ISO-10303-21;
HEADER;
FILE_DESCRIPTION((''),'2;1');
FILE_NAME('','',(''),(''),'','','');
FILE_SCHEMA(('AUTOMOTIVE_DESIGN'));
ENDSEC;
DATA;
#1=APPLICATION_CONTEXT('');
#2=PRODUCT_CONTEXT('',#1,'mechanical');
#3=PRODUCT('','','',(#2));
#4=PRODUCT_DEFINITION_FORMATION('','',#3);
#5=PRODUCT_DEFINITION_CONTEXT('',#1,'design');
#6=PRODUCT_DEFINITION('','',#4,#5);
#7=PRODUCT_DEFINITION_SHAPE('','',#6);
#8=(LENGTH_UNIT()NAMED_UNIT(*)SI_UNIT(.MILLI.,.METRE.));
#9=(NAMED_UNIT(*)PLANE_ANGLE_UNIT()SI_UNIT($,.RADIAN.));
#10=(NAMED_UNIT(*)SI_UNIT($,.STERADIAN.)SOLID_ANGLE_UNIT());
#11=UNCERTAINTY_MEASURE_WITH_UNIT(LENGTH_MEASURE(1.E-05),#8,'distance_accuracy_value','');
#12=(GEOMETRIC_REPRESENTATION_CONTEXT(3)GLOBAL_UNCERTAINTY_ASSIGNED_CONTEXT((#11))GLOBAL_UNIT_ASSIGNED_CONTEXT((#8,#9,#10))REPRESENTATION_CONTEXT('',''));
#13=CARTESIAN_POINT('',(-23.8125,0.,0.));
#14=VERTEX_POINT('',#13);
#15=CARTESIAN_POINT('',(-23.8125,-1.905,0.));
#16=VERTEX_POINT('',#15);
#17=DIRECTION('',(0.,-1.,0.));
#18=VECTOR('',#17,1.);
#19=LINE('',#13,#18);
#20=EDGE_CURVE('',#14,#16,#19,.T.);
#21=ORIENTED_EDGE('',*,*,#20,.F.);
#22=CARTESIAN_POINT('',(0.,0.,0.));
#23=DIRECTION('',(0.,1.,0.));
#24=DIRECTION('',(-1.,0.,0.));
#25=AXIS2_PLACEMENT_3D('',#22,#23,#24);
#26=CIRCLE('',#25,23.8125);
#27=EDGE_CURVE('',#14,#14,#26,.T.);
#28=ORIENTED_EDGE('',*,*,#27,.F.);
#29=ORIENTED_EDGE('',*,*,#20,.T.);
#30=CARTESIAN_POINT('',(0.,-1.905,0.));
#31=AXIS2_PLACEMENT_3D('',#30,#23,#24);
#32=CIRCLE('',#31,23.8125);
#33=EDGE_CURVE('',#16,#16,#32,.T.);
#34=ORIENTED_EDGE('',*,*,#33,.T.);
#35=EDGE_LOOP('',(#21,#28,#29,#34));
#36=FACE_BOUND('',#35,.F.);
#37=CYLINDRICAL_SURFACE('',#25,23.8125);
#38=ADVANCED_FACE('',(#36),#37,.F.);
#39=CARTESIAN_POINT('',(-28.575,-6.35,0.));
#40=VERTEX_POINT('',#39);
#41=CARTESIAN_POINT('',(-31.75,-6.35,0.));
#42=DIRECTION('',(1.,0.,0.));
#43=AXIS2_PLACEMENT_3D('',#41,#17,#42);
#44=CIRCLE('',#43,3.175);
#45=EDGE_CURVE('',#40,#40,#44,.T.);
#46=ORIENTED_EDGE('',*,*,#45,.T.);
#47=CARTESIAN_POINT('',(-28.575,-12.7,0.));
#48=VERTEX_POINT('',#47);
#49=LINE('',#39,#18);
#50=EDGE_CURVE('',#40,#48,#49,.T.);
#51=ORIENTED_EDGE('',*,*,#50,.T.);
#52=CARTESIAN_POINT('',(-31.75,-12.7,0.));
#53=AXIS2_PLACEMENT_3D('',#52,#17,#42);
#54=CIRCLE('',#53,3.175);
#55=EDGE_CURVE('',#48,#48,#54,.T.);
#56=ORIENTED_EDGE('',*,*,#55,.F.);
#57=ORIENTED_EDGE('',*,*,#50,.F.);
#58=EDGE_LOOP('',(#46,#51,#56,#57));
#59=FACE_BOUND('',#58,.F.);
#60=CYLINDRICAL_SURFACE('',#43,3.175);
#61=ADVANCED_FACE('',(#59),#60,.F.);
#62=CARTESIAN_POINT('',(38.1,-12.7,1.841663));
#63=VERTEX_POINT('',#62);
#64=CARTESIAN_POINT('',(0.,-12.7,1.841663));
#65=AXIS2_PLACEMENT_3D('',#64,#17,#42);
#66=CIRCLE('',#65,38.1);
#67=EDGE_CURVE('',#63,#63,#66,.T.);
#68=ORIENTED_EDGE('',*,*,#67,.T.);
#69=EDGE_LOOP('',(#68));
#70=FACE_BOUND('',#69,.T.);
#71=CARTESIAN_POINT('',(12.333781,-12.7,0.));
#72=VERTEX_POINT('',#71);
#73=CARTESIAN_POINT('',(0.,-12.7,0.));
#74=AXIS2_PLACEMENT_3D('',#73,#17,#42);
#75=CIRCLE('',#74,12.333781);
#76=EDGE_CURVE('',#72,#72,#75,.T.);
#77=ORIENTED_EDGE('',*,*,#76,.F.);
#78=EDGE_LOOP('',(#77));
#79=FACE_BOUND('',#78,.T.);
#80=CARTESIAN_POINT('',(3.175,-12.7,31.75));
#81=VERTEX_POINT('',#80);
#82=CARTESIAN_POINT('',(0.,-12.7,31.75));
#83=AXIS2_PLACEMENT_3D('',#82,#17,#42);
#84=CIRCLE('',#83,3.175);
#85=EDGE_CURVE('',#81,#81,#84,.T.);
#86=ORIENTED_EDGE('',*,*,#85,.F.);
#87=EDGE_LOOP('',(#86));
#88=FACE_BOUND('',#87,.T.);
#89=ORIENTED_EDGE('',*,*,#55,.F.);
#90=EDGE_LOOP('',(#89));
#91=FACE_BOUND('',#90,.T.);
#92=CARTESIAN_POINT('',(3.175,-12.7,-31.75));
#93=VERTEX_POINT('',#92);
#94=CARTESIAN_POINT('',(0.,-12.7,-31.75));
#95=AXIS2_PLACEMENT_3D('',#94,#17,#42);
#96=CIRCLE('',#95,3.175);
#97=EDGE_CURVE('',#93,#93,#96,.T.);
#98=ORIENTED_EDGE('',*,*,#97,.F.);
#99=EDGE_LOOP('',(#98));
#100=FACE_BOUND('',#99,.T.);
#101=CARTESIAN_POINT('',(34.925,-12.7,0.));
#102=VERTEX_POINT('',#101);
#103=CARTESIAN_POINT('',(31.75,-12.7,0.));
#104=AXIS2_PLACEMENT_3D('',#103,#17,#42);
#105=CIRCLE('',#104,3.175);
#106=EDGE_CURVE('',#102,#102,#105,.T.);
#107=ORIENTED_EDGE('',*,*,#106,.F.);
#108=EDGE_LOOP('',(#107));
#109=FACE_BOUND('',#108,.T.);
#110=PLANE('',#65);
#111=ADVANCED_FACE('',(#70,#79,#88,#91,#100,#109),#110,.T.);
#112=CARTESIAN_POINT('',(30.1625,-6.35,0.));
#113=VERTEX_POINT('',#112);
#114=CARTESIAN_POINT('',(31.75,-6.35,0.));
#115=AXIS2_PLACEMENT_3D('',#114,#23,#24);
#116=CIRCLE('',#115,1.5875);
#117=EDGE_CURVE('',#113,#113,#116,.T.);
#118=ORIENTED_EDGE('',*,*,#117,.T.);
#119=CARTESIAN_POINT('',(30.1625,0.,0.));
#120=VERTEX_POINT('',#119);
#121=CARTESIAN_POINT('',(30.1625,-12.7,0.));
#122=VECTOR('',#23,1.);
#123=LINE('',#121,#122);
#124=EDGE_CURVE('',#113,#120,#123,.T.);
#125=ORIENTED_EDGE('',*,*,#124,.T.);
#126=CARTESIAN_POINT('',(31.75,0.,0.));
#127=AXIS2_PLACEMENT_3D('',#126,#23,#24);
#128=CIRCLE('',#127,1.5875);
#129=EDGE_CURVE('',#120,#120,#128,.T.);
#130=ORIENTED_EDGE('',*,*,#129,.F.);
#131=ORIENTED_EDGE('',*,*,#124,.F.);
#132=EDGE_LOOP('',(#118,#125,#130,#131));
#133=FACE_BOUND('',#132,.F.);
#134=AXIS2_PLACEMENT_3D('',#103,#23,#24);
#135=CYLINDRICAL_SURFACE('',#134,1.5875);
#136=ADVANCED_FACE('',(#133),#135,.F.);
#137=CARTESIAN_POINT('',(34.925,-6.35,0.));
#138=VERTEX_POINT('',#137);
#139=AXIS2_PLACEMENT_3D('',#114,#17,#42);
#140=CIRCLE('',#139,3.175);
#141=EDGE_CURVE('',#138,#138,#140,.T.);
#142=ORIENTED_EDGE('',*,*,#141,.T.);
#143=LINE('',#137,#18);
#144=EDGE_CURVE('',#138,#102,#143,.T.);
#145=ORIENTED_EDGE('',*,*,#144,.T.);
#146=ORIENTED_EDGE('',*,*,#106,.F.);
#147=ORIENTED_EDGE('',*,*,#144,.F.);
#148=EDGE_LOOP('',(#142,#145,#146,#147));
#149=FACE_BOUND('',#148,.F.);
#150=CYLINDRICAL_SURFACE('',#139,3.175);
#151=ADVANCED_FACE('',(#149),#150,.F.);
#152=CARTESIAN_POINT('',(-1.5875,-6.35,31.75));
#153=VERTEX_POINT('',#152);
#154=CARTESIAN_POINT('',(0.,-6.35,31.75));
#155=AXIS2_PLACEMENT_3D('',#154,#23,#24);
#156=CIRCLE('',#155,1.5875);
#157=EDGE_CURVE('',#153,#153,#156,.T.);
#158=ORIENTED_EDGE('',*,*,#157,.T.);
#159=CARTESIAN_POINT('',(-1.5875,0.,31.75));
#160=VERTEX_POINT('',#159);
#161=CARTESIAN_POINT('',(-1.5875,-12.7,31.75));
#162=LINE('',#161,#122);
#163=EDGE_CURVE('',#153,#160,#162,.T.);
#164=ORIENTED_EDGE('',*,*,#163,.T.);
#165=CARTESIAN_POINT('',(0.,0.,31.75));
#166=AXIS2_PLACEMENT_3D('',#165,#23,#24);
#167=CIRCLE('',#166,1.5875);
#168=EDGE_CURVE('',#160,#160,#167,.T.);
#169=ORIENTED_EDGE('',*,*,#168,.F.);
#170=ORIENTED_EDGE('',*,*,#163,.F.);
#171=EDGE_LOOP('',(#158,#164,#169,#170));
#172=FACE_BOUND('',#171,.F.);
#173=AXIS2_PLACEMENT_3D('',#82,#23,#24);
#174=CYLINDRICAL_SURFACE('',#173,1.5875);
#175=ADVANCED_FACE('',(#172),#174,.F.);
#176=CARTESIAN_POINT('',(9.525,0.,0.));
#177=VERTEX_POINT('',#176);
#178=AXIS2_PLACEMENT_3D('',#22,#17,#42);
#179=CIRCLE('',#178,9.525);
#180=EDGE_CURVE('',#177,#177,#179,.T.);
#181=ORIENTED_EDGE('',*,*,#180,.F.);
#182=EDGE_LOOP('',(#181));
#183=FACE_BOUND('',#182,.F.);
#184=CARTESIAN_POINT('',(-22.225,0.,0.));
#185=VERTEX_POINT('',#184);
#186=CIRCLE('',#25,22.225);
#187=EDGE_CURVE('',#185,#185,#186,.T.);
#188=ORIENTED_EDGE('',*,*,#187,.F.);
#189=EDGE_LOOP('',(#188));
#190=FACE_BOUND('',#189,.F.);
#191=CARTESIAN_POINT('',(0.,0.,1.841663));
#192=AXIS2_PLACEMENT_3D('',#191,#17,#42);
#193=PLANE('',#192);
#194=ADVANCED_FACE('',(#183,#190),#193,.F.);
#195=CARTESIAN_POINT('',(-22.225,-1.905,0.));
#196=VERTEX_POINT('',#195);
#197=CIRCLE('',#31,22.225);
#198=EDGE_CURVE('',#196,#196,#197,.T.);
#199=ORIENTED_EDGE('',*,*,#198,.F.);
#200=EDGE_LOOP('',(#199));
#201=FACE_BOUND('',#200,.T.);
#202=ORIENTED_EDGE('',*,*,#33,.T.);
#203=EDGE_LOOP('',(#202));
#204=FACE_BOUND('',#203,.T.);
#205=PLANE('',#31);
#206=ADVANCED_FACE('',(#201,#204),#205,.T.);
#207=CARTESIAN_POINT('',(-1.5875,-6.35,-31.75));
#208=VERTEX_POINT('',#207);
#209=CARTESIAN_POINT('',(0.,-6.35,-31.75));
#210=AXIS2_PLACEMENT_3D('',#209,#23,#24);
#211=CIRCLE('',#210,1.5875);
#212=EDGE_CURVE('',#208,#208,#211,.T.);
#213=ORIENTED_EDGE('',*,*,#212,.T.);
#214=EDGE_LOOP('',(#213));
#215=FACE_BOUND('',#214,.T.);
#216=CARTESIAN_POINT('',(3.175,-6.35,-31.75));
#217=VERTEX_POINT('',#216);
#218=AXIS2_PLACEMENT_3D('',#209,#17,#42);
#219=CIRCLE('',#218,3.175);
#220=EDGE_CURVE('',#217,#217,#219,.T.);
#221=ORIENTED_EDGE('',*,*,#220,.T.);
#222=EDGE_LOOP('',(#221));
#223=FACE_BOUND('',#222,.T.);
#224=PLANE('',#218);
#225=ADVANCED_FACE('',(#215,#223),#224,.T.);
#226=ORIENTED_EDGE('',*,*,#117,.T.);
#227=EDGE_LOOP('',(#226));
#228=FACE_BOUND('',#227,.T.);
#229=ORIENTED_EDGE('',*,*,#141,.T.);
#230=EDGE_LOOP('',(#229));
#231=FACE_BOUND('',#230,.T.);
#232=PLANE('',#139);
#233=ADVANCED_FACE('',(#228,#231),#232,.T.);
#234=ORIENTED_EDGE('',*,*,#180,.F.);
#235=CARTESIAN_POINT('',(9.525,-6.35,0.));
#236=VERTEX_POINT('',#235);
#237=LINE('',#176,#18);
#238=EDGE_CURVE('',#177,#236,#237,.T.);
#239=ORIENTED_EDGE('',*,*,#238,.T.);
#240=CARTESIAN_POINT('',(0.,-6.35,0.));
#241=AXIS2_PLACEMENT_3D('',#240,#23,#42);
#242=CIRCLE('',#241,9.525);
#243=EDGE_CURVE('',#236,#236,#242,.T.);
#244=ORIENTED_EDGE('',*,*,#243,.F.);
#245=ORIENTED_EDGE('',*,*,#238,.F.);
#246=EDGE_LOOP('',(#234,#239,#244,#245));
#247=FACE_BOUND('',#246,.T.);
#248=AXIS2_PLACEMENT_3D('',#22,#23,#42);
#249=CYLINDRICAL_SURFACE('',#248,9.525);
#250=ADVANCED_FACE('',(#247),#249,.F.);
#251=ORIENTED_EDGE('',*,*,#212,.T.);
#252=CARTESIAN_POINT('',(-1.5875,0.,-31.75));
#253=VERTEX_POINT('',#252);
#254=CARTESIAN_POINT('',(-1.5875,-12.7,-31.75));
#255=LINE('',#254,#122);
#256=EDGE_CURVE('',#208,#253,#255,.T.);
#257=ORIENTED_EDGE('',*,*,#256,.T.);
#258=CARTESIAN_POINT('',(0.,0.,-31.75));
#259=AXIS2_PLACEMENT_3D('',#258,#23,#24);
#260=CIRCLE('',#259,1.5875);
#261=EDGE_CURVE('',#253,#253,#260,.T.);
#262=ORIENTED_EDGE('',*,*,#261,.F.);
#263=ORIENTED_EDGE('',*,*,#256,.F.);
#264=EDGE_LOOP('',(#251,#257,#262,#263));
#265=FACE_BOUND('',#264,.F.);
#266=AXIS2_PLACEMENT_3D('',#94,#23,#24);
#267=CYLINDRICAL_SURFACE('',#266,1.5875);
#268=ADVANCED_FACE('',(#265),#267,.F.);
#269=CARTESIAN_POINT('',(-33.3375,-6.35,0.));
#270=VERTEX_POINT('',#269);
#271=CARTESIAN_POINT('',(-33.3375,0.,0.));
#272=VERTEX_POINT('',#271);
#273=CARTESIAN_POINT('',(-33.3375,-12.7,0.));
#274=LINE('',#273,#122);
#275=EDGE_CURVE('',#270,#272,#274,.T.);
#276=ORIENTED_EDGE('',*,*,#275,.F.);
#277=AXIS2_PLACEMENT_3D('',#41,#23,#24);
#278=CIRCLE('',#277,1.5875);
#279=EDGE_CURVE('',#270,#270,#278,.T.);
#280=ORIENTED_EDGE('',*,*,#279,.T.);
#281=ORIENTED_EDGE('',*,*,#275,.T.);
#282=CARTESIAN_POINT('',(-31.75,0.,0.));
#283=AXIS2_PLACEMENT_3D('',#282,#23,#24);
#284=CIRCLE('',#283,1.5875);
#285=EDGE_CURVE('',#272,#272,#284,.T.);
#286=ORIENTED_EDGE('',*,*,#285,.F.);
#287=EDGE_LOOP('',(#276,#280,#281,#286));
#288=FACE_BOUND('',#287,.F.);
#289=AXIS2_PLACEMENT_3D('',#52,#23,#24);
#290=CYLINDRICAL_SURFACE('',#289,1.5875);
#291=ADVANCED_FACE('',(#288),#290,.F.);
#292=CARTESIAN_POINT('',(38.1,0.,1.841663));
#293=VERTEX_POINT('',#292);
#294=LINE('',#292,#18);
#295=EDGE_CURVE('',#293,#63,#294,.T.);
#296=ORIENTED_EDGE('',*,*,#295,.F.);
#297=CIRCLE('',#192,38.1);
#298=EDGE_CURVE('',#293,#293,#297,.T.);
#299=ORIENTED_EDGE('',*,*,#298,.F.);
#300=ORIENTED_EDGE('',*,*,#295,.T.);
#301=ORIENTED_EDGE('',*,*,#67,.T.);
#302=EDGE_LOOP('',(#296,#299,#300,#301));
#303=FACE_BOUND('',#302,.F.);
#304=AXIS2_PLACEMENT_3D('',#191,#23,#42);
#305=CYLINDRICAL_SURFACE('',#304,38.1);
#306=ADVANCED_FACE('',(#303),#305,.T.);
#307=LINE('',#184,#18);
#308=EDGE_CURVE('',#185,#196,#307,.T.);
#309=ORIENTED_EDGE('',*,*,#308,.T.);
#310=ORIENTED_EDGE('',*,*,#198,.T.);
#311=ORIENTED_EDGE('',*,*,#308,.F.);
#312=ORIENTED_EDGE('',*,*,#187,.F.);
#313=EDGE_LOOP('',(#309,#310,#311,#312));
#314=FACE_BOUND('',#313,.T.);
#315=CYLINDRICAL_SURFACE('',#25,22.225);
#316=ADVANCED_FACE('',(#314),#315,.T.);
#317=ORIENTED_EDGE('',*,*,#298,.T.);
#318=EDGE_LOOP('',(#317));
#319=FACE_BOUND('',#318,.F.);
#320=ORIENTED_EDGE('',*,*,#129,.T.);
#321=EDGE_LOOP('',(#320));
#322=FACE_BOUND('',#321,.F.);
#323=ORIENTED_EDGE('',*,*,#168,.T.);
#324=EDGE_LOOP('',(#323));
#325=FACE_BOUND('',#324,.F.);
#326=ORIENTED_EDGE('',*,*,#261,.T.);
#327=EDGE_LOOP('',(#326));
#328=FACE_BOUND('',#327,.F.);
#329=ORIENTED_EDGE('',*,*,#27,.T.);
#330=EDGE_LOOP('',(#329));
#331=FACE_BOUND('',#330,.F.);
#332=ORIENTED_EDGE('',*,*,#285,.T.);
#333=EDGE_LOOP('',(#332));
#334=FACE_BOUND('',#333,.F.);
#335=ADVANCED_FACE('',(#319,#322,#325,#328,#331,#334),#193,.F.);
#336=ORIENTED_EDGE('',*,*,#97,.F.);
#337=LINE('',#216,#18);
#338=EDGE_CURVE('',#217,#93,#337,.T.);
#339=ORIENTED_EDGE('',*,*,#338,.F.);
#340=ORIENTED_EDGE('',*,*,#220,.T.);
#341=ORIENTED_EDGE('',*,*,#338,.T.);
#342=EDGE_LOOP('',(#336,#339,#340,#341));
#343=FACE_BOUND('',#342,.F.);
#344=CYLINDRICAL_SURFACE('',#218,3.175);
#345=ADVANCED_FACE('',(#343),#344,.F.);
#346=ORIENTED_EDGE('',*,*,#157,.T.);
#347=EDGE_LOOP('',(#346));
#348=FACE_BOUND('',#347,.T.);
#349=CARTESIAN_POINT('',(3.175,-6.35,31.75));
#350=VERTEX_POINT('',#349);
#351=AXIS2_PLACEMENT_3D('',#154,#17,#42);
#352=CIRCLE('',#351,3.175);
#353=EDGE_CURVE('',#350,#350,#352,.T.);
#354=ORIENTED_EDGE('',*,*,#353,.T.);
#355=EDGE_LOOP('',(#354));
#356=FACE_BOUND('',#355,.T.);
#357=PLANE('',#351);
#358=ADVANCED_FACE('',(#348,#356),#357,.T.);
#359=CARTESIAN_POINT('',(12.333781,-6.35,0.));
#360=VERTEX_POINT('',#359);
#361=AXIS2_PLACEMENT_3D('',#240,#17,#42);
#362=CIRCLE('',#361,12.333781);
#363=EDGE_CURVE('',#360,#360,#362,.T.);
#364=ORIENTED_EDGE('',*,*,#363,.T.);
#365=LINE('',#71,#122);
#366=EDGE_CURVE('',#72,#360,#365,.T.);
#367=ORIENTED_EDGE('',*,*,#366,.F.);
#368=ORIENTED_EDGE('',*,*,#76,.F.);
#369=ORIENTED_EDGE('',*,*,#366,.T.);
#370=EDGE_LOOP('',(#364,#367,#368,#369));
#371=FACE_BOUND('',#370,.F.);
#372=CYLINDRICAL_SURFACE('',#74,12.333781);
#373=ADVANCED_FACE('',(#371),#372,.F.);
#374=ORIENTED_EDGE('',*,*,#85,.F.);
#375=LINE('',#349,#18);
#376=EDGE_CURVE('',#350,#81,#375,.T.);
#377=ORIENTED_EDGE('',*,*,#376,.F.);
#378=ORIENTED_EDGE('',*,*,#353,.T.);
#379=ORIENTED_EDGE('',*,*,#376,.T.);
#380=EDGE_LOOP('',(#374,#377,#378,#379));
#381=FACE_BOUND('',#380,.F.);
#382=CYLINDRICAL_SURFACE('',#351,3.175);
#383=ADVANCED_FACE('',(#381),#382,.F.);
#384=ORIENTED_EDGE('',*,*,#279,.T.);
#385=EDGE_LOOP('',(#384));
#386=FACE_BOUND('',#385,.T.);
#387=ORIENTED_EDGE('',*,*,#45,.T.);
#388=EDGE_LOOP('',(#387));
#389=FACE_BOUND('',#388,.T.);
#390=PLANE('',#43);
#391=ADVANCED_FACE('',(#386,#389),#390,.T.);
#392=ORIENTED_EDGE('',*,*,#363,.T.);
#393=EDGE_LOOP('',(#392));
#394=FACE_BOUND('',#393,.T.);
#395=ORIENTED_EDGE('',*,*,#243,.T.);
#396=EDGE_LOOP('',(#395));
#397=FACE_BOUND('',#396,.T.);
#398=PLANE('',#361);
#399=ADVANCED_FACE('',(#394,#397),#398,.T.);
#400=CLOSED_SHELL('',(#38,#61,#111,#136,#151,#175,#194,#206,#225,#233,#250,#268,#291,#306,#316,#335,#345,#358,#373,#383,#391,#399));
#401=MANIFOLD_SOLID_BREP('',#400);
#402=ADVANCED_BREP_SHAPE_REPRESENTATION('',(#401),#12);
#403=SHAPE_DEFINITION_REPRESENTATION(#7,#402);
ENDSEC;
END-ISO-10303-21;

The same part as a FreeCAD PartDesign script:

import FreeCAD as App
import Part
import Sketcher
from FreeCAD import Vector
Q = App.Units.Quantity

doc = App.newDocument("Part")
body = doc.addObject("PartDesign::Body", "Body")

# Sketch on XZ plane
sketch1 = body.newObject("Sketcher::SketchObject", "Sketch")
sketch1.AttachmentSupport = (doc.getObject("XZ_Plane"), [""])
sketch1.MapMode = "FlatFace"
sketch1.addGeometry(Part.Circle(Vector(0, 1.841663, 0), Vector(0, 0, 1), 38.1), False)
sketch1.addGeometry(Part.Circle(Vector(0, 0, 0), Vector(0, 0, 1), 9.525), False)
sketch1.addConstraint(Sketcher.Constraint("Coincident", 1, 3, -1, 1))
sketch1.addConstraint(Sketcher.Constraint("PointOnObject", 0, 3, -2))
sketch1.addConstraint(Sketcher.Constraint("Diameter", 0, Q("3 in")))
sketch1.addConstraint(Sketcher.Constraint("Diameter", 1, Q("0.75 in")))
sketch1.addConstraint(Sketcher.Constraint("DistanceY", -1, 1, 0, 3, 1.841663))
pad1 = body.newObject("PartDesign::Pad", "Pad")
pad1.Profile = sketch1
pad1.Length = Q("0.5 in")

# Sketch on XZ plane
sketch2 = body.newObject("Sketcher::SketchObject", "Sketch001")
sketch2.AttachmentSupport = (doc.getObject("XZ_Plane"), [""])
sketch2.MapMode = "FlatFace"
sketch2.AttachmentOffset = App.Placement(Vector(0, 0, 0.5 * 25.4), App.Rotation())
sketch2.addGeometry(Part.Circle(Vector(0, 0, 0), Vector(0, 0, 1), 12.333781), False)
sketch2.addConstraint(Sketcher.Constraint("Coincident", 0, 3, -1, 1))
sketch2.addConstraint(Sketcher.Constraint("Diameter", 0, 24.667562))
pocket1 = body.newObject("PartDesign::Pocket", "Pocket")
pocket1.Profile = sketch2
pocket1.Length = Q("0.25 in")

# Sketch on XZ plane
sketch3 = body.newObject("Sketcher::SketchObject", "Sketch002")
sketch3.AttachmentSupport = (doc.getObject("XZ_Plane"), [""])
sketch3.MapMode = "FlatFace"
sketch3.AttachmentOffset = App.Placement(Vector(0, 0, 0.5 * 25.4), App.Rotation())
sketch3.addGeometry(Part.Circle(Vector(0, 31.75, 0), Vector(0, 0, 1), 1.5875), False)
sketch3.addGeometry(Part.Circle(Vector(31.75, 0, 0), Vector(0, 0, 1), 1.5875), False)
sketch3.addGeometry(Part.Circle(Vector(0, -31.75, 0), Vector(0, 0, 1), 1.5875), False)
sketch3.addGeometry(Part.Circle(Vector(-31.75, 0, 0), Vector(0, 0, 1), 1.5875), False)
sketch3.addConstraint(Sketcher.Constraint("Equal", 0, 1))
sketch3.addConstraint(Sketcher.Constraint("Equal", 1, 2))
sketch3.addConstraint(Sketcher.Constraint("Equal", 2, 3))
sketch3.addConstraint(Sketcher.Constraint("Symmetric", 0, 3, 2, 3, -1, 1))
sketch3.addConstraint(Sketcher.Constraint("Symmetric", 1, 3, 3, 3, -1, 1))
sketch3.addConstraint(Sketcher.Constraint("PointOnObject", 0, 3, -2))
sketch3.addConstraint(Sketcher.Constraint("PointOnObject", 1, 3, -1))
sketch3.addConstraint(Sketcher.Constraint("Diameter", 0, Q("0.125 in")))
sketch3.addConstraint(Sketcher.Constraint("DistanceY", 2, 3, 0, 3, Q("2.5 in")))
sketch3.addConstraint(Sketcher.Constraint("DistanceX", 3, 3, 1, 3, Q("2.5 in")))
doc.recompute()
hole = body.newObject("PartDesign::Hole", "Hole")
hole.Profile = sketch3
hole.ThreadType = "None"
hole.Diameter = Q("0.125 in")
hole.DepthType = "ThroughAll"
hole.HoleCutType = "Counterbore"
hole.HoleCutDiameter = Q("0.25 in")
hole.HoleCutDepth = Q("0.25 in")

# Sketch on XZ plane
sketch4 = body.newObject("Sketcher::SketchObject", "Sketch003")
sketch4.AttachmentSupport = (doc.getObject("XZ_Plane"), [""])
sketch4.MapMode = "FlatFace"
sketch4.addGeometry(Part.Circle(Vector(0, 0, 0), Vector(0, 0, 1), 23.8125), False)
sketch4.addGeometry(Part.Circle(Vector(0, 0, 0), Vector(0, 0, 1), 22.225), False)
sketch4.addConstraint(Sketcher.Constraint("Coincident", 0, 3, -1, 1))
sketch4.addConstraint(Sketcher.Constraint("Coincident", 1, 3, -1, 1))
sketch4.addConstraint(Sketcher.Constraint("Diameter", 1, Q("1.75 in")))
sketch4.addConstraint(Sketcher.Constraint("Diameter", 0, Q("1.875 in")))
pocket2 = body.newObject("PartDesign::Pocket", "Pocket001")
pocket2.Profile = sketch4
pocket2.Length = Q("0.075 in")
pocket2.Reversed = True

doc.recompute()
